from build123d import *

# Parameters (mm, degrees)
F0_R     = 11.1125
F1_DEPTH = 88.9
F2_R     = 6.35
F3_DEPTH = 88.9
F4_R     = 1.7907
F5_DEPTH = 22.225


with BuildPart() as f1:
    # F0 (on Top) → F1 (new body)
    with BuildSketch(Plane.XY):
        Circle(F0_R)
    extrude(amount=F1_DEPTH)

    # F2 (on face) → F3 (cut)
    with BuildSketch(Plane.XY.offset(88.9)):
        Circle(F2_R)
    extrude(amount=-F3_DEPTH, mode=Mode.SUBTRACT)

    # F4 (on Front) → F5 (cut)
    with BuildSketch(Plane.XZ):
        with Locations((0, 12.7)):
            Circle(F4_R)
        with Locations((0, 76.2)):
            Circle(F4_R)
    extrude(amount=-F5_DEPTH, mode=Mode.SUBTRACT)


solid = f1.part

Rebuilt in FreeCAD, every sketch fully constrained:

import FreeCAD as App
import Part
import Sketcher
Q = App.Units.Quantity

doc = App.newDocument("Part")
body = doc.addObject("PartDesign::Body", "Body")

# Sketch on XY plane
sketch1 = body.newObject("Sketcher::SketchObject", "Sketch")
sketch1.AttachmentSupport = (doc.getObject("XY_Plane"), [""])
sketch1.MapMode = "FlatFace"
sketch1.addGeometry(Part.Circle(App.Vector(0, 0, 0), App.Vector(0, 0, 1), 11), False)
sketch1.addConstraint([
    Sketcher.Constraint("Coincident", 0, 3, -1, 1),
    Sketcher.Constraint("Diameter", 0, Q("0.875 in")),
])
pad1 = body.newObject("PartDesign::Pad", "Pad")
pad1.Profile = sketch1
pad1.Length = Q("3.5 in")

# Sketch on XY plane
sketch2 = body.newObject("Sketcher::SketchObject", "Sketch001")
sketch2.AttachmentSupport = (doc.getObject("XY_Plane"), [""])
sketch2.MapMode = "FlatFace"
sketch2.AttachmentOffset = App.Placement(App.Vector(0, 0, 3.5 * 25.4), App.Rotation())
sketch2.addGeometry(Part.Circle(App.Vector(0, 0, 0), App.Vector(0, 0, 1), 6), False)
sketch2.addConstraint([
    Sketcher.Constraint("Coincident", 0, 3, -1, 1),
    Sketcher.Constraint("Diameter", 0, Q("0.5 in")),
])
pocket1 = body.newObject("PartDesign::Pocket", "Pocket")
pocket1.Profile = sketch2
pocket1.Length = Q("3.5 in")

# Sketch on XZ plane
sketch3 = body.newObject("Sketcher::SketchObject", "Sketch002")
sketch3.AttachmentSupport = (doc.getObject("XZ_Plane"), [""])
sketch3.MapMode = "FlatFace"
sketch3.addGeometry([
    Part.Circle(App.Vector(0, 12.7, 0), App.Vector(0, 0, 1), 1.8),
    Part.Circle(App.Vector(0, 76.2, 0), App.Vector(0, 0, 1), 1.8),
], False)
sketch3.addConstraint([
    Sketcher.Constraint("Equal", 0, 1),
    Sketcher.Constraint("PointOnObject", 0, 3, -2),
    Sketcher.Constraint("PointOnObject", 1, 3, -2),
    Sketcher.Constraint("Diameter", 0, Q("0.141 in")),
    Sketcher.Constraint("DistanceY", -1, 1, 1, 3, Q("3 in")),
    Sketcher.Constraint("DistanceY", -1, 1, 0, 3, Q("0.5 in")),
])
pocket2 = body.newObject("PartDesign::Pocket", "Pocket001")
pocket2.Profile = sketch3
pocket2.Length = Q("0.875 in")

doc.recompute()
